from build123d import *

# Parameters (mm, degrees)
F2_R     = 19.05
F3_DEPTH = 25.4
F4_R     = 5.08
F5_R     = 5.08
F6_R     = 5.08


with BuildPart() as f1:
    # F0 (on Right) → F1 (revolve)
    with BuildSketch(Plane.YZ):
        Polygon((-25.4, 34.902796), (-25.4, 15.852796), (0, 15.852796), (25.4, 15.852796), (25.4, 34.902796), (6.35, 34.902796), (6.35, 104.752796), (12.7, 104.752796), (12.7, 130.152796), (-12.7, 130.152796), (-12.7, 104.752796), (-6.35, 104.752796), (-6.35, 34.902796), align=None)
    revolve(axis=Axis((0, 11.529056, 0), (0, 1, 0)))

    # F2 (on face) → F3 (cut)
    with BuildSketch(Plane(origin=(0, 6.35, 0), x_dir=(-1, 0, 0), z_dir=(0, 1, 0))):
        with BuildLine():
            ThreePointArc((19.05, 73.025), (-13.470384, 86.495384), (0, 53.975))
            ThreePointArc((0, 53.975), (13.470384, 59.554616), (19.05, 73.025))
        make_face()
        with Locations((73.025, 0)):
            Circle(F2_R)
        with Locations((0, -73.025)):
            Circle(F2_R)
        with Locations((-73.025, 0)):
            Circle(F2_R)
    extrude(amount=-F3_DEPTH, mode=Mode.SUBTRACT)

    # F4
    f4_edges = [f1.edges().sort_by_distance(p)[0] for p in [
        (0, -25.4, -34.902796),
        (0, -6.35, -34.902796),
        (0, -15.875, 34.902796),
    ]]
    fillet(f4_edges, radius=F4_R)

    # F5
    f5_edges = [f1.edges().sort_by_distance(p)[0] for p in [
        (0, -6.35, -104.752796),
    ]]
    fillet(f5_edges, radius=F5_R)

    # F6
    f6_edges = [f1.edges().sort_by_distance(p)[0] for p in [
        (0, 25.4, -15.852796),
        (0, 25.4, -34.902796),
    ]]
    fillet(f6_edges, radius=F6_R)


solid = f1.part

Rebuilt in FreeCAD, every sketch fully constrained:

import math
import FreeCAD as App
import Part
import Sketcher
from FreeCAD import Vector
Q = App.Units.Quantity


def edges_at(feature, points):
    """Names of the edges that pass closest to the given points."""
    edges = feature.Shape.Edges
    near = lambda p: min(range(len(edges)), key=lambda i: edges[i].distToShape(Part.Vertex(*p))[0])
    return sorted({f"Edge{near(p) + 1}" for p in points})

doc = App.newDocument("Part")
body = doc.addObject("PartDesign::Body", "Body")

# Sketch on YZ plane
sketch1 = doc.addObject("Sketcher::SketchObject", "Sketch")
body.addObject(sketch1)
sketch1.AttachmentSupport = (doc.YZ_Plane, [""])
sketch1.MapMode = "FlatFace"
sketch1.addGeometry([
    Part.LineSegment(Vector(-25.4, 34.902796, 0), Vector(-25.4, 15.852796, 0)),  # 0
    Part.LineSegment(Vector(-25.4, 15.852796, 0), Vector(25.4, 15.852796, 0)),  # 1
    Part.LineSegment(Vector(25.4, 15.852796, 0), Vector(25.4, 34.902796, 0)),  # 2
    Part.LineSegment(Vector(25.4, 34.902796, 0), Vector(6.35, 34.902796, 0)),  # 3
    Part.LineSegment(Vector(6.35, 34.902796, 0), Vector(6.35, 104.752796, 0)),  # 4
    Part.LineSegment(Vector(6.35, 104.752796, 0), Vector(12.7, 104.752796, 0)),  # 5
    Part.LineSegment(Vector(12.7, 104.752796, 0), Vector(12.7, 130.152796, 0)),  # 6
    Part.LineSegment(Vector(12.7, 130.152796, 0), Vector(-12.7, 130.152796, 0)),  # 7
    Part.LineSegment(Vector(-12.7, 130.152796, 0), Vector(-12.7, 104.752796, 0)),  # 8
    Part.LineSegment(Vector(-12.7, 104.752796, 0), Vector(-6.35, 104.752796, 0)),  # 9
    Part.LineSegment(Vector(-6.35, 104.752796, 0), Vector(-6.35, 34.902796, 0)),  # 10
    Part.LineSegment(Vector(-6.35, 34.902796, 0), Vector(-25.4, 34.902796, 0)),  # 11
], False)
sketch1.addConstraint([
    Sketcher.Constraint("Coincident", 0, 2, 1, 1),
    Sketcher.Constraint("Coincident", 1, 2, 2, 1),
    Sketcher.Constraint("Coincident", 2, 2, 3, 1),
    Sketcher.Constraint("Coincident", 3, 2, 4, 1),
    Sketcher.Constraint("Coincident", 4, 2, 5, 1),
    Sketcher.Constraint("Coincident", 5, 2, 6, 1),
    Sketcher.Constraint("Coincident", 6, 2, 7, 1),
    Sketcher.Constraint("Coincident", 7, 2, 8, 1),
    Sketcher.Constraint("Coincident", 8, 2, 9, 1),
    Sketcher.Constraint("Coincident", 9, 2, 10, 1),
    Sketcher.Constraint("Coincident", 10, 2, 11, 1),
    Sketcher.Constraint("Coincident", 11, 2, 0, 1),
    Sketcher.Constraint("Vertical", 0),
    Sketcher.Constraint("Horizontal", 1),
    Sketcher.Constraint("Vertical", 2),
    Sketcher.Constraint("Horizontal", 3),
    Sketcher.Constraint("Vertical", 4),
    Sketcher.Constraint("Horizontal", 5),
    Sketcher.Constraint("Vertical", 6),
    Sketcher.Constraint("Horizontal", 7),
    Sketcher.Constraint("Vertical", 8),
    Sketcher.Constraint("Horizontal", 9),
    Sketcher.Constraint("Vertical", 10),
    Sketcher.Constraint("Horizontal", 11),
    Sketcher.Constraint("Symmetric", 5, 2, 8, 2, -2),
    Sketcher.Constraint("Symmetric", 3, 2, 10, 2, -2),
    Sketcher.Constraint("Equal", 3, 11),
    Sketcher.Constraint("Equal", 11, 0),
    Sketcher.Constraint("Equal", 7, 6),
    Sketcher.Constraint("DistanceX", 1, 1, 1, 2, Q("2 in")),
    Sketcher.Constraint("DistanceX", 7, 2, 7, 1, Q("1 in")),
    Sketcher.Constraint("DistanceX", 3, 2, 3, 1, Q("0.75 in")),
    Sketcher.Constraint("DistanceY", 4, 1, 4, 2, Q("2.75 in")),
    Sketcher.Constraint("DistanceY", -1, 1, 0, 2, 15.852796),
])
revolution = doc.addObject("PartDesign::Revolution", "Revolution")
body.addObject(revolution)
revolution.Profile = sketch1
revolution.ReferenceAxis = (sketch1, ["H_Axis"])
revolution.Angle = 360

# Sketch on XZ plane
sketch2 = doc.addObject("Sketcher::SketchObject", "Sketch001")
body.addObject(sketch2)
sketch2.AttachmentSupport = (doc.XZ_Plane, [""])
sketch2.MapMode = "FlatFace"
sketch2.AttachmentOffset = App.Placement(Vector(0, 0, -0.25 * 25.4), App.Rotation())
sketch2.addGeometry([
    Part.ArcOfCircle(Part.Circle(Vector(0, 73.025, 0), Vector(0, 0, 1), 19.05), math.radians(-90), math.radians(180)),  # 0
    Part.ArcOfCircle(Part.Circle(Vector(0.000001, 73.025001, 0), Vector(0, 0, 1), 19.050001), math.radians(-179.999998), math.radians(-90.000002)),  # 1
    Part.Circle(Vector(-73.025, 0, 0), Vector(0, 0, 1), 19.05),  # 2
    Part.Circle(Vector(0, -73.025, 0), Vector(0, 0, 1), 19.05),  # 3
    Part.Circle(Vector(73.025, 0, 0), Vector(0, 0, 1), 19.05),  # 4
], False)
sketch2.addConstraint([
    Sketcher.Constraint("Tangent", 0, 1, 1, 2),
    Sketcher.Constraint("Coincident", 1, 1, 0, 2),
    Sketcher.Constraint("Equal", 1, 2),
    Sketcher.Constraint("Equal", 2, 3),
    Sketcher.Constraint("Equal", 3, 4),
    Sketcher.Constraint("Symmetric", 0, 3, 3, 3, -1, 1),
    Sketcher.Constraint("Symmetric", 2, 3, 4, 3, -1, 1),
    Sketcher.Constraint("PointOnObject", 0, 3, -2),
    Sketcher.Constraint("PointOnObject", 2, 3, -1),
    Sketcher.Constraint("PointOnObject", 0, 1, -2),
    Sketcher.Constraint("Horizontal", 0, 3, 1, 1),
    Sketcher.Constraint("Diameter", 2, Q("1.5 in")),
    Sketcher.Constraint("DistanceY", 3, 3, 0, 1, Q("5 in")),
    Sketcher.Constraint("DistanceX", 2, 3, 4, 3, Q("5.75 in")),
])
pocket1 = doc.addObject("PartDesign::Pocket", "Pocket")
body.addObject(pocket1)
pocket1.Profile = sketch2
pocket1.Length = Q("1 in")
pocket1.Reversed = True
doc.recompute()

fillet = doc.addObject("PartDesign::Fillet", "Fillet")
body.addObject(fillet)
fillet.Base = (pocket1, edges_at(pocket1, [(0, -25.4, -34.903), (0, -6.35, -34.903), (0, -15.875, 34.903)]))
fillet.Radius = Q("0.2 in")
doc.recompute()

fillet2 = doc.addObject("PartDesign::Fillet", "Fillet001")
body.addObject(fillet2)
fillet2.Base = (fillet, edges_at(fillet, [(0, -6.35, -104.753)]))
fillet2.Radius = Q("0.2 in")
doc.recompute()

fillet3 = doc.addObject("PartDesign::Fillet", "Fillet002")
body.addObject(fillet3)
fillet3.Base = (fillet2, edges_at(fillet2, [(0, 25.4, -15.853), (0, 25.4, -34.903)]))
fillet3.Radius = Q("0.2 in")

doc.recompute()
